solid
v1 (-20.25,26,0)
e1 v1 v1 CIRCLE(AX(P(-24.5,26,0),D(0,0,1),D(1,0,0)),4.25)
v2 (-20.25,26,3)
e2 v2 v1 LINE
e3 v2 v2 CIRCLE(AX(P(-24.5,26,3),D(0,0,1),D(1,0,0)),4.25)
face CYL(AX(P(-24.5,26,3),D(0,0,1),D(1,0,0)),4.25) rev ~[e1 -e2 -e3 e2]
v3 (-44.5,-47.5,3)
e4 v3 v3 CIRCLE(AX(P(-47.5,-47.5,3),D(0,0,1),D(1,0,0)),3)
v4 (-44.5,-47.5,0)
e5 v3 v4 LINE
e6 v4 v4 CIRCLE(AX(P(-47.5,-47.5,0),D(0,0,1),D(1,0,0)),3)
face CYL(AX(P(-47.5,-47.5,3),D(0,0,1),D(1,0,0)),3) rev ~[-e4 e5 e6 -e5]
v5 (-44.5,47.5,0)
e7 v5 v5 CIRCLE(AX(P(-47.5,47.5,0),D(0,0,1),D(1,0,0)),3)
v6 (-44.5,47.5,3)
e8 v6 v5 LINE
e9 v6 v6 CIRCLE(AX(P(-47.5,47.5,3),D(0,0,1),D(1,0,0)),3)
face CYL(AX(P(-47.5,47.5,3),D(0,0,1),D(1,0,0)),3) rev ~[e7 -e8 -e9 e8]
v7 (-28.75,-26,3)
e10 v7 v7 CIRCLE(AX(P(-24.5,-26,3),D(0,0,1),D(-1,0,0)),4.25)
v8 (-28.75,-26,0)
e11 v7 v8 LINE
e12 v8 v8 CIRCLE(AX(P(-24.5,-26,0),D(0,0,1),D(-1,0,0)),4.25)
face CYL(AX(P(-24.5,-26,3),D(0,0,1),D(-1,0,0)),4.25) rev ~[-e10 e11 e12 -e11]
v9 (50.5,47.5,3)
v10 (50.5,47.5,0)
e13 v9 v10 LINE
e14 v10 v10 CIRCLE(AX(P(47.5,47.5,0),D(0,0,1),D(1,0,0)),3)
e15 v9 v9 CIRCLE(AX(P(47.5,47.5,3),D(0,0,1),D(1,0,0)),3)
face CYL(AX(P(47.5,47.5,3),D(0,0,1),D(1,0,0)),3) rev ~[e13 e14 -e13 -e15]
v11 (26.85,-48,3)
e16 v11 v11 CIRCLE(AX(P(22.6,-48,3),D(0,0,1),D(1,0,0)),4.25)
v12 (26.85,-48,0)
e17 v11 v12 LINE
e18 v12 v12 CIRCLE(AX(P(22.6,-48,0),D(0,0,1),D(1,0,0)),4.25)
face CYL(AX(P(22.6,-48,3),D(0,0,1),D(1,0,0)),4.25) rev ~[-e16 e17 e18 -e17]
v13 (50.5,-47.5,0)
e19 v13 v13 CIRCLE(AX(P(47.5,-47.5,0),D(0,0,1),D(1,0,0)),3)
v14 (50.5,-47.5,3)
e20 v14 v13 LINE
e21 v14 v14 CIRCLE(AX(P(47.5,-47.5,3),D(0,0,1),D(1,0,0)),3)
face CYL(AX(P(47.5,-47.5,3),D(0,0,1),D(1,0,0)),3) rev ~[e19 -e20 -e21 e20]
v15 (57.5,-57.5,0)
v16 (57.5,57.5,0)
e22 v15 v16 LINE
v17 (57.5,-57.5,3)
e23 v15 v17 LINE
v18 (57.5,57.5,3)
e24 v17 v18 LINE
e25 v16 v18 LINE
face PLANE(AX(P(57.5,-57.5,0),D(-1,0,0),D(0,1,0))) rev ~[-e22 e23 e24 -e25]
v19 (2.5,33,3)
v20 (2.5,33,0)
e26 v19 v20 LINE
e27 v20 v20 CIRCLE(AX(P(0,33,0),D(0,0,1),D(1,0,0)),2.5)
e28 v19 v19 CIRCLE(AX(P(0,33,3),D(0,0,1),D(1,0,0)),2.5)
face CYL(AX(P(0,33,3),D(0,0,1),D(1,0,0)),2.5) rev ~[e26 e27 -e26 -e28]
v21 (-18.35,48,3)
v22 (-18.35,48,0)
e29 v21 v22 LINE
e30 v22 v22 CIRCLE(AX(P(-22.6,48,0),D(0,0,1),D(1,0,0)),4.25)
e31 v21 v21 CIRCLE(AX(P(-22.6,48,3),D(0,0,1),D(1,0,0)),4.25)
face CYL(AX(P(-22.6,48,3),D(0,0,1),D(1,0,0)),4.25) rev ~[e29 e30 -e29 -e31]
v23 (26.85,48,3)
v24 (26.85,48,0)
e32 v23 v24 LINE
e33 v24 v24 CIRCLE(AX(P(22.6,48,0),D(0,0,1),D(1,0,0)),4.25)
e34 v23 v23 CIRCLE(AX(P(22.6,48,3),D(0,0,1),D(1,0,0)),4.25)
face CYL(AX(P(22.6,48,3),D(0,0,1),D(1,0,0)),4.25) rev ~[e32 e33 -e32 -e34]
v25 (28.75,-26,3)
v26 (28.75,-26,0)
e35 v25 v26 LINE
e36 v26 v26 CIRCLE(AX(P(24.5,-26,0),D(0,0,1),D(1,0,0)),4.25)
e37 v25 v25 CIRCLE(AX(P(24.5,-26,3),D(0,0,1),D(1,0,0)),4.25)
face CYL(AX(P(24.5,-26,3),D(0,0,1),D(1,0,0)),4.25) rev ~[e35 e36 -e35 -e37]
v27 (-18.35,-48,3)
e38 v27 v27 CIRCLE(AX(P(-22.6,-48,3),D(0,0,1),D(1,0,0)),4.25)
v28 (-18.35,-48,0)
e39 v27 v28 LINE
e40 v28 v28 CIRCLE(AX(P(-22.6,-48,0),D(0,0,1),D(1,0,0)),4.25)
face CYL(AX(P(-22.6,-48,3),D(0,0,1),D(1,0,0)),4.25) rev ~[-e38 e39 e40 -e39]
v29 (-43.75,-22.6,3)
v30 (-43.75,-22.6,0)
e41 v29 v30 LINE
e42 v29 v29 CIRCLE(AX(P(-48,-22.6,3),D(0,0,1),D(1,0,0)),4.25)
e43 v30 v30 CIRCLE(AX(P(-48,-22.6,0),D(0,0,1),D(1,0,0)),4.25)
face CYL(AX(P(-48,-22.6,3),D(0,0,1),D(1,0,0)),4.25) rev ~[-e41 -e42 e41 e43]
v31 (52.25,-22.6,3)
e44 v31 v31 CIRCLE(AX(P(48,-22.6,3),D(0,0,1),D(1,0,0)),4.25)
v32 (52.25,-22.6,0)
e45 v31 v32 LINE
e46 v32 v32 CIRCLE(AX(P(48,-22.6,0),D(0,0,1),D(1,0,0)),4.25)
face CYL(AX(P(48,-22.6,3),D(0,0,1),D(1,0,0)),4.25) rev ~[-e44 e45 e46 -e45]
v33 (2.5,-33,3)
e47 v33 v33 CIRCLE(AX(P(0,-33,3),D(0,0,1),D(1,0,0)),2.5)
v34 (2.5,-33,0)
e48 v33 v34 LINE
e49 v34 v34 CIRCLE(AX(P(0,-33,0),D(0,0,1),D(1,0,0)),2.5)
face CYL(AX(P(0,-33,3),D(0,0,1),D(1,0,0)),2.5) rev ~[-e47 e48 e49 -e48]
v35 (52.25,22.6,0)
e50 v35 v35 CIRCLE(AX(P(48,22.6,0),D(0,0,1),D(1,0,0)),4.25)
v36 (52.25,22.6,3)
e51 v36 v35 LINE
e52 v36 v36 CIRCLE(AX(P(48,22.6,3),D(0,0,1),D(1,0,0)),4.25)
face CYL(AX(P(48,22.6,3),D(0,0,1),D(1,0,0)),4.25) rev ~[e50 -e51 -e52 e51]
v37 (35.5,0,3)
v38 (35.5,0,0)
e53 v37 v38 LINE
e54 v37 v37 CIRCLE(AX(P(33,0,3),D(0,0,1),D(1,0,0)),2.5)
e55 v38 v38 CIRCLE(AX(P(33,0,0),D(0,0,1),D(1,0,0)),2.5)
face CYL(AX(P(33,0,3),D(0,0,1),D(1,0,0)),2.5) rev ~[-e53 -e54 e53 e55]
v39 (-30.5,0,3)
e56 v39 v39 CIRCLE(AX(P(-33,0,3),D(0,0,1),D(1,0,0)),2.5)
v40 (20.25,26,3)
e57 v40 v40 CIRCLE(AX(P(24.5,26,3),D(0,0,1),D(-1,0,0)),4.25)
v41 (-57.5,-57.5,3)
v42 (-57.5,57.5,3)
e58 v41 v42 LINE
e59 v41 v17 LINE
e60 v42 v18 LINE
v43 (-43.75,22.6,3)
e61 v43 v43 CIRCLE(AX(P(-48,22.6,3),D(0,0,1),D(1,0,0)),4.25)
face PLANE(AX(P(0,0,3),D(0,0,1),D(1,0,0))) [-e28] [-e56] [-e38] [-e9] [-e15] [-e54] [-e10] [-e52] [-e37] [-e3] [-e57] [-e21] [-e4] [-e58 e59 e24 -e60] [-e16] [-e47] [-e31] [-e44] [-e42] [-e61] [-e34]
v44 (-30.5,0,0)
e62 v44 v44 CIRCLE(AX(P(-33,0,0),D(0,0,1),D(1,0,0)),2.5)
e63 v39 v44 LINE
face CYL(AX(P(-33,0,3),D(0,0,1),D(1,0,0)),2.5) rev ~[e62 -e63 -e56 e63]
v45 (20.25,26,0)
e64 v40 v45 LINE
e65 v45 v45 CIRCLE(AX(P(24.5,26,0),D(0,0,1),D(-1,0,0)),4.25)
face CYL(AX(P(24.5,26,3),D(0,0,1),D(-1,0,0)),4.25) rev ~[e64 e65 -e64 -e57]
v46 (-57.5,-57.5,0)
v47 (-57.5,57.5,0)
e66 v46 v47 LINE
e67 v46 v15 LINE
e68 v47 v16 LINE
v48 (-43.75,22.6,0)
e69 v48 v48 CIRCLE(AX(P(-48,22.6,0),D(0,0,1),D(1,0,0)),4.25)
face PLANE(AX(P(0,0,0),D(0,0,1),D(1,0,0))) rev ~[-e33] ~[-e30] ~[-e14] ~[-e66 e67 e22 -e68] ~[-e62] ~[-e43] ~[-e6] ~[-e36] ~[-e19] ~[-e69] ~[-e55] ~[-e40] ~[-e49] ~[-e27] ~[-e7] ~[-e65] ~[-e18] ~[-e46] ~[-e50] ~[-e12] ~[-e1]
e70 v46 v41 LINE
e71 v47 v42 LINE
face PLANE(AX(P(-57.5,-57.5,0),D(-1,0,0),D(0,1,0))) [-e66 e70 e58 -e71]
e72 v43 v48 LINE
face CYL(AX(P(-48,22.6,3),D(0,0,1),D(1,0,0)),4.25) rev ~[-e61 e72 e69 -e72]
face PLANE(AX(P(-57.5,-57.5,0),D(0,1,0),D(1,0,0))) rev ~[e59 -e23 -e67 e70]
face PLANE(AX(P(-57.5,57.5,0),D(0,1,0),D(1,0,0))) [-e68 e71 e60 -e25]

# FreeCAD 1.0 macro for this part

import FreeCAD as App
import Part
import Sketcher

doc = App.newDocument("Part")
params = doc.addObject("Spreadsheet::Sheet", "Params")
for row, (alias, value) in enumerate([
    ("sketch1_width", "115 mm"),
    ("pad1_length", "3 mm"),
    ("sketch2_diameter", "6 mm"),
    ("sketch3_diameter", "5 mm"),
    ("sketch3_diameter2", "8.5 mm"),
    ("pocket2_length", "3 mm"),
    ("sketch4_diameter", "8.5 mm"),
    ("pocket3_length", "3 mm"),
], start=1):
    params.set(f"A{row}", alias)
    params.set(f"B{row}", "=" + value)
    params.setAlias(f"B{row}", alias)

body = doc.addObject("PartDesign::Body", "Body")

# Sketch on XY plane
sketch1 = body.newObject("Sketcher::SketchObject", "Sketch")
sketch1.AttachmentSupport = (doc.getObject("XY_Plane"), [""])
sketch1.MapMode = "FlatFace"
sketch1.addGeometry([
    Part.LineSegment(App.Vector(-58, 58, 0), App.Vector(-58, -58, 0)),
    Part.LineSegment(App.Vector(-58, -58, 0), App.Vector(58, -58, 0)),
    Part.LineSegment(App.Vector(58, -58, 0), App.Vector(58, 58, 0)),
    Part.LineSegment(App.Vector(58, 58, 0), App.Vector(-58, 58, 0)),
], False)
sketch1.addConstraint([
    Sketcher.Constraint("Coincident", 0, 2, 1, 1),
    Sketcher.Constraint("Coincident", 1, 2, 2, 1),
    Sketcher.Constraint("Coincident", 2, 2, 3, 1),
    Sketcher.Constraint("Coincident", 3, 2, 0, 1),
    Sketcher.Constraint("Vertical", 0),
    Sketcher.Constraint("Horizontal", 1),
    Sketcher.Constraint("Vertical", 2),
    Sketcher.Constraint("Horizontal", 3),
    Sketcher.Constraint("Symmetric", 0, 2, 2, 2, -1, 1),
    Sketcher.Constraint("Equal", 3, 0),
    Sketcher.Constraint("DistanceX", 1, 1, 1, 2, 115.0),
])
sketch1.setExpression("Constraints[10]", "Params.sketch1_width")
pad1 = body.newObject("PartDesign::Pad", "Pad")
pad1.Profile = sketch1
pad1.setExpression("Length", "Params.pad1_length")

# Sketch on XY plane
sketch2 = body.newObject("Sketcher::SketchObject", "Sketch001")
sketch2.AttachmentSupport = (doc.getObject("XY_Plane"), [""])
sketch2.MapMode = "FlatFace"
sketch2.AttachmentOffset = App.Placement(App.Vector(0, 0, 3), App.Rotation())
sketch2.addGeometry([
    Part.Circle(App.Vector(-47.5, 47.5, 0), App.Vector(0, 0, 1), 3),
    Part.Circle(App.Vector(47.5, 47.5, 0), App.Vector(0, 0, 1), 3),
    Part.Circle(App.Vector(47.5, -47.5, 0), App.Vector(0, 0, 1), 3),
    Part.Circle(App.Vector(-47.5, -47.5, 0), App.Vector(0, 0, 1), 3),
], False)
sketch2.addConstraint([
    Sketcher.Constraint("Equal", 0, 1),
    Sketcher.Constraint("Equal", 1, 2),
    Sketcher.Constraint("Equal", 2, 3),
    Sketcher.Constraint("Symmetric", 0, 3, 2, 3, -1, 1),
    Sketcher.Constraint("Symmetric", 1, 3, 3, 3, -1, 1),
    Sketcher.Constraint("Symmetric", 0, 3, 1, 3, -2),
    Sketcher.Constraint("Diameter", 0, 6.0),
    Sketcher.Constraint("DistanceX", 0, 3, 1, 3, 95.0),
    Sketcher.Constraint("DistanceY", 2, 3, 1, 3, 95.0),
])
sketch2.setExpression("Constraints[6]", "Params.sketch2_diameter")
pocket1 = body.newObject("PartDesign::Pocket", "Pocket")
pocket1.Profile = sketch2
pocket1.Type = "ThroughAll"

# Sketch on XY plane
sketch3 = body.newObject("Sketcher::SketchObject", "Sketch002")
sketch3.AttachmentSupport = (doc.getObject("XY_Plane"), [""])
sketch3.MapMode = "FlatFace"
sketch3.AttachmentOffset = App.Placement(App.Vector(0, 0, 3), App.Rotation())
sketch3.addGeometry([
    Part.Circle(App.Vector(-22.6, -48, 0), App.Vector(0, 0, 1), 4.2),  # 0
    Part.Circle(App.Vector(22.6, -48, 0), App.Vector(0, 0, 1), 4.2),  # 1
    Part.Circle(App.Vector(-48, -22.6, 0), App.Vector(0, 0, 1), 4.2),  # 2
    Part.Circle(App.Vector(-48, 22.6, 0), App.Vector(0, 0, 1), 4.2),  # 3
    Part.Circle(App.Vector(48, -22.6, 0), App.Vector(0, 0, 1), 4.2),  # 4
    Part.Circle(App.Vector(48, 22.6, 0), App.Vector(0, 0, 1), 4.2),  # 5
    Part.Circle(App.Vector(22.6, 48, 0), App.Vector(0, 0, 1), 4.2),  # 6
    Part.Circle(App.Vector(-22.6, 48, 0), App.Vector(0, 0, 1), 4.2),  # 7
    Part.Circle(App.Vector(-33, 0, 0), App.Vector(0, 0, 1), 2.5),  # 8
    Part.Circle(App.Vector(0, -33, 0), App.Vector(0, 0, 1), 2.5),  # 9
    Part.Circle(App.Vector(0, 33, 0), App.Vector(0, 0, 1), 2.5),  # 10
    Part.Circle(App.Vector(33, 0, 0), App.Vector(0, 0, 1), 2.5),  # 11
], False)
sketch3.addConstraint([
    Sketcher.Constraint("Equal", 0, 1),
    Sketcher.Constraint("Equal", 1, 2),
    Sketcher.Constraint("Equal", 2, 3),
    Sketcher.Constraint("Equal", 3, 4),
    Sketcher.Constraint("Equal", 4, 5),
    Sketcher.Constraint("Equal", 5, 6),
    Sketcher.Constraint("Equal", 6, 7),
    Sketcher.Constraint("Equal", 8, 9),
    Sketcher.Constraint("Equal", 9, 10),
    Sketcher.Constraint("Equal", 10, 11),
    Sketcher.Constraint("Symmetric", 3, 3, 4, 3, -1, 1),
    Sketcher.Constraint("Symmetric", 2, 3, 5, 3, -1, 1),
    Sketcher.Constraint("Symmetric", 0, 3, 6, 3, -1, 1),
    Sketcher.Constraint("Symmetric", 1, 3, 7, 3, -1, 1),
    Sketcher.Constraint("Symmetric", 9, 3, 10, 3, -1, 1),
    Sketcher.Constraint("Symmetric", 8, 3, 11, 3, -1, 1),
    Sketcher.Constraint("Symmetric", 0, 3, 1, 3, -2),
    Sketcher.Constraint("Symmetric", 2, 3, 4, 3, -2),
    Sketcher.Constraint("PointOnObject", 8, 3, -1),
    Sketcher.Constraint("PointOnObject", 9, 3, -2),
    Sketcher.Constraint("Diameter", 8, 5.0),
    Sketcher.Constraint("Diameter", 0, 8.5),
    Sketcher.Constraint("DistanceY", 0, 3, -1, 1, 48.0),
    Sketcher.Constraint("DistanceX", 2, 3, -1, 1, 48.0),
    Sketcher.Constraint("DistanceX", 8, 3, -1, 1, 33.0),
    Sketcher.Constraint("DistanceY", 9, 3, -1, 1, 33.0),
    Sketcher.Constraint("DistanceX", 0, 3, -1, 1, 22.6),
    Sketcher.Constraint("DistanceY", 2, 3, -1, 1, 22.6),
])
sketch3.setExpression("Constraints[20]", "Params.sketch3_diameter")
sketch3.setExpression("Constraints[21]", "Params.sketch3_diameter2")
pocket2 = body.newObject("PartDesign::Pocket", "Pocket001")
pocket2.Profile = sketch3
pocket2.setExpression("Length", "Params.pocket2_length")

# Sketch on XY plane
sketch4 = body.newObject("Sketcher::SketchObject", "Sketch003")
sketch4.AttachmentSupport = (doc.getObject("XY_Plane"), [""])
sketch4.MapMode = "FlatFace"
sketch4.AttachmentOffset = App.Placement(App.Vector(0, 0, 3), App.Rotation())
sketch4.addGeometry([
    Part.Circle(App.Vector(-24.5, 26, 0), App.Vector(0, 0, 1), 4.2),
    Part.Circle(App.Vector(-24.5, -26, 0), App.Vector(0, 0, 1), 4.2),
    Part.Circle(App.Vector(24.5, 26, 0), App.Vector(0, 0, 1), 4.2),
    Part.Circle(App.Vector(24.5, -26, 0), App.Vector(0, 0, 1), 4.2),
], False)
sketch4.addConstraint([
    Sketcher.Constraint("Equal", 0, 1),
    Sketcher.Constraint("Equal", 1, 2),
    Sketcher.Constraint("Equal", 2, 3),
    Sketcher.Constraint("Symmetric", 1, 3, 2, 3, -1, 1),
    Sketcher.Constraint("Symmetric", 0, 3, 3, 3, -1, 1),
    Sketcher.Constraint("Symmetric", 0, 3, 2, 3, -2),
    Sketcher.Constraint("Diameter", 0, 8.5),
    Sketcher.Constraint("DistanceY", -1, 1, 0, 3, 26.0),
    Sketcher.Constraint("DistanceX", 0, 3, 2, 3, 49.0),
])
sketch4.setExpression("Constraints[6]", "Params.sketch4_diameter")
pocket3 = body.newObject("PartDesign::Pocket", "Pocket002")
pocket3.Profile = sketch4
pocket3.setExpression("Length", "Params.pocket3_length")

doc.recompute()
